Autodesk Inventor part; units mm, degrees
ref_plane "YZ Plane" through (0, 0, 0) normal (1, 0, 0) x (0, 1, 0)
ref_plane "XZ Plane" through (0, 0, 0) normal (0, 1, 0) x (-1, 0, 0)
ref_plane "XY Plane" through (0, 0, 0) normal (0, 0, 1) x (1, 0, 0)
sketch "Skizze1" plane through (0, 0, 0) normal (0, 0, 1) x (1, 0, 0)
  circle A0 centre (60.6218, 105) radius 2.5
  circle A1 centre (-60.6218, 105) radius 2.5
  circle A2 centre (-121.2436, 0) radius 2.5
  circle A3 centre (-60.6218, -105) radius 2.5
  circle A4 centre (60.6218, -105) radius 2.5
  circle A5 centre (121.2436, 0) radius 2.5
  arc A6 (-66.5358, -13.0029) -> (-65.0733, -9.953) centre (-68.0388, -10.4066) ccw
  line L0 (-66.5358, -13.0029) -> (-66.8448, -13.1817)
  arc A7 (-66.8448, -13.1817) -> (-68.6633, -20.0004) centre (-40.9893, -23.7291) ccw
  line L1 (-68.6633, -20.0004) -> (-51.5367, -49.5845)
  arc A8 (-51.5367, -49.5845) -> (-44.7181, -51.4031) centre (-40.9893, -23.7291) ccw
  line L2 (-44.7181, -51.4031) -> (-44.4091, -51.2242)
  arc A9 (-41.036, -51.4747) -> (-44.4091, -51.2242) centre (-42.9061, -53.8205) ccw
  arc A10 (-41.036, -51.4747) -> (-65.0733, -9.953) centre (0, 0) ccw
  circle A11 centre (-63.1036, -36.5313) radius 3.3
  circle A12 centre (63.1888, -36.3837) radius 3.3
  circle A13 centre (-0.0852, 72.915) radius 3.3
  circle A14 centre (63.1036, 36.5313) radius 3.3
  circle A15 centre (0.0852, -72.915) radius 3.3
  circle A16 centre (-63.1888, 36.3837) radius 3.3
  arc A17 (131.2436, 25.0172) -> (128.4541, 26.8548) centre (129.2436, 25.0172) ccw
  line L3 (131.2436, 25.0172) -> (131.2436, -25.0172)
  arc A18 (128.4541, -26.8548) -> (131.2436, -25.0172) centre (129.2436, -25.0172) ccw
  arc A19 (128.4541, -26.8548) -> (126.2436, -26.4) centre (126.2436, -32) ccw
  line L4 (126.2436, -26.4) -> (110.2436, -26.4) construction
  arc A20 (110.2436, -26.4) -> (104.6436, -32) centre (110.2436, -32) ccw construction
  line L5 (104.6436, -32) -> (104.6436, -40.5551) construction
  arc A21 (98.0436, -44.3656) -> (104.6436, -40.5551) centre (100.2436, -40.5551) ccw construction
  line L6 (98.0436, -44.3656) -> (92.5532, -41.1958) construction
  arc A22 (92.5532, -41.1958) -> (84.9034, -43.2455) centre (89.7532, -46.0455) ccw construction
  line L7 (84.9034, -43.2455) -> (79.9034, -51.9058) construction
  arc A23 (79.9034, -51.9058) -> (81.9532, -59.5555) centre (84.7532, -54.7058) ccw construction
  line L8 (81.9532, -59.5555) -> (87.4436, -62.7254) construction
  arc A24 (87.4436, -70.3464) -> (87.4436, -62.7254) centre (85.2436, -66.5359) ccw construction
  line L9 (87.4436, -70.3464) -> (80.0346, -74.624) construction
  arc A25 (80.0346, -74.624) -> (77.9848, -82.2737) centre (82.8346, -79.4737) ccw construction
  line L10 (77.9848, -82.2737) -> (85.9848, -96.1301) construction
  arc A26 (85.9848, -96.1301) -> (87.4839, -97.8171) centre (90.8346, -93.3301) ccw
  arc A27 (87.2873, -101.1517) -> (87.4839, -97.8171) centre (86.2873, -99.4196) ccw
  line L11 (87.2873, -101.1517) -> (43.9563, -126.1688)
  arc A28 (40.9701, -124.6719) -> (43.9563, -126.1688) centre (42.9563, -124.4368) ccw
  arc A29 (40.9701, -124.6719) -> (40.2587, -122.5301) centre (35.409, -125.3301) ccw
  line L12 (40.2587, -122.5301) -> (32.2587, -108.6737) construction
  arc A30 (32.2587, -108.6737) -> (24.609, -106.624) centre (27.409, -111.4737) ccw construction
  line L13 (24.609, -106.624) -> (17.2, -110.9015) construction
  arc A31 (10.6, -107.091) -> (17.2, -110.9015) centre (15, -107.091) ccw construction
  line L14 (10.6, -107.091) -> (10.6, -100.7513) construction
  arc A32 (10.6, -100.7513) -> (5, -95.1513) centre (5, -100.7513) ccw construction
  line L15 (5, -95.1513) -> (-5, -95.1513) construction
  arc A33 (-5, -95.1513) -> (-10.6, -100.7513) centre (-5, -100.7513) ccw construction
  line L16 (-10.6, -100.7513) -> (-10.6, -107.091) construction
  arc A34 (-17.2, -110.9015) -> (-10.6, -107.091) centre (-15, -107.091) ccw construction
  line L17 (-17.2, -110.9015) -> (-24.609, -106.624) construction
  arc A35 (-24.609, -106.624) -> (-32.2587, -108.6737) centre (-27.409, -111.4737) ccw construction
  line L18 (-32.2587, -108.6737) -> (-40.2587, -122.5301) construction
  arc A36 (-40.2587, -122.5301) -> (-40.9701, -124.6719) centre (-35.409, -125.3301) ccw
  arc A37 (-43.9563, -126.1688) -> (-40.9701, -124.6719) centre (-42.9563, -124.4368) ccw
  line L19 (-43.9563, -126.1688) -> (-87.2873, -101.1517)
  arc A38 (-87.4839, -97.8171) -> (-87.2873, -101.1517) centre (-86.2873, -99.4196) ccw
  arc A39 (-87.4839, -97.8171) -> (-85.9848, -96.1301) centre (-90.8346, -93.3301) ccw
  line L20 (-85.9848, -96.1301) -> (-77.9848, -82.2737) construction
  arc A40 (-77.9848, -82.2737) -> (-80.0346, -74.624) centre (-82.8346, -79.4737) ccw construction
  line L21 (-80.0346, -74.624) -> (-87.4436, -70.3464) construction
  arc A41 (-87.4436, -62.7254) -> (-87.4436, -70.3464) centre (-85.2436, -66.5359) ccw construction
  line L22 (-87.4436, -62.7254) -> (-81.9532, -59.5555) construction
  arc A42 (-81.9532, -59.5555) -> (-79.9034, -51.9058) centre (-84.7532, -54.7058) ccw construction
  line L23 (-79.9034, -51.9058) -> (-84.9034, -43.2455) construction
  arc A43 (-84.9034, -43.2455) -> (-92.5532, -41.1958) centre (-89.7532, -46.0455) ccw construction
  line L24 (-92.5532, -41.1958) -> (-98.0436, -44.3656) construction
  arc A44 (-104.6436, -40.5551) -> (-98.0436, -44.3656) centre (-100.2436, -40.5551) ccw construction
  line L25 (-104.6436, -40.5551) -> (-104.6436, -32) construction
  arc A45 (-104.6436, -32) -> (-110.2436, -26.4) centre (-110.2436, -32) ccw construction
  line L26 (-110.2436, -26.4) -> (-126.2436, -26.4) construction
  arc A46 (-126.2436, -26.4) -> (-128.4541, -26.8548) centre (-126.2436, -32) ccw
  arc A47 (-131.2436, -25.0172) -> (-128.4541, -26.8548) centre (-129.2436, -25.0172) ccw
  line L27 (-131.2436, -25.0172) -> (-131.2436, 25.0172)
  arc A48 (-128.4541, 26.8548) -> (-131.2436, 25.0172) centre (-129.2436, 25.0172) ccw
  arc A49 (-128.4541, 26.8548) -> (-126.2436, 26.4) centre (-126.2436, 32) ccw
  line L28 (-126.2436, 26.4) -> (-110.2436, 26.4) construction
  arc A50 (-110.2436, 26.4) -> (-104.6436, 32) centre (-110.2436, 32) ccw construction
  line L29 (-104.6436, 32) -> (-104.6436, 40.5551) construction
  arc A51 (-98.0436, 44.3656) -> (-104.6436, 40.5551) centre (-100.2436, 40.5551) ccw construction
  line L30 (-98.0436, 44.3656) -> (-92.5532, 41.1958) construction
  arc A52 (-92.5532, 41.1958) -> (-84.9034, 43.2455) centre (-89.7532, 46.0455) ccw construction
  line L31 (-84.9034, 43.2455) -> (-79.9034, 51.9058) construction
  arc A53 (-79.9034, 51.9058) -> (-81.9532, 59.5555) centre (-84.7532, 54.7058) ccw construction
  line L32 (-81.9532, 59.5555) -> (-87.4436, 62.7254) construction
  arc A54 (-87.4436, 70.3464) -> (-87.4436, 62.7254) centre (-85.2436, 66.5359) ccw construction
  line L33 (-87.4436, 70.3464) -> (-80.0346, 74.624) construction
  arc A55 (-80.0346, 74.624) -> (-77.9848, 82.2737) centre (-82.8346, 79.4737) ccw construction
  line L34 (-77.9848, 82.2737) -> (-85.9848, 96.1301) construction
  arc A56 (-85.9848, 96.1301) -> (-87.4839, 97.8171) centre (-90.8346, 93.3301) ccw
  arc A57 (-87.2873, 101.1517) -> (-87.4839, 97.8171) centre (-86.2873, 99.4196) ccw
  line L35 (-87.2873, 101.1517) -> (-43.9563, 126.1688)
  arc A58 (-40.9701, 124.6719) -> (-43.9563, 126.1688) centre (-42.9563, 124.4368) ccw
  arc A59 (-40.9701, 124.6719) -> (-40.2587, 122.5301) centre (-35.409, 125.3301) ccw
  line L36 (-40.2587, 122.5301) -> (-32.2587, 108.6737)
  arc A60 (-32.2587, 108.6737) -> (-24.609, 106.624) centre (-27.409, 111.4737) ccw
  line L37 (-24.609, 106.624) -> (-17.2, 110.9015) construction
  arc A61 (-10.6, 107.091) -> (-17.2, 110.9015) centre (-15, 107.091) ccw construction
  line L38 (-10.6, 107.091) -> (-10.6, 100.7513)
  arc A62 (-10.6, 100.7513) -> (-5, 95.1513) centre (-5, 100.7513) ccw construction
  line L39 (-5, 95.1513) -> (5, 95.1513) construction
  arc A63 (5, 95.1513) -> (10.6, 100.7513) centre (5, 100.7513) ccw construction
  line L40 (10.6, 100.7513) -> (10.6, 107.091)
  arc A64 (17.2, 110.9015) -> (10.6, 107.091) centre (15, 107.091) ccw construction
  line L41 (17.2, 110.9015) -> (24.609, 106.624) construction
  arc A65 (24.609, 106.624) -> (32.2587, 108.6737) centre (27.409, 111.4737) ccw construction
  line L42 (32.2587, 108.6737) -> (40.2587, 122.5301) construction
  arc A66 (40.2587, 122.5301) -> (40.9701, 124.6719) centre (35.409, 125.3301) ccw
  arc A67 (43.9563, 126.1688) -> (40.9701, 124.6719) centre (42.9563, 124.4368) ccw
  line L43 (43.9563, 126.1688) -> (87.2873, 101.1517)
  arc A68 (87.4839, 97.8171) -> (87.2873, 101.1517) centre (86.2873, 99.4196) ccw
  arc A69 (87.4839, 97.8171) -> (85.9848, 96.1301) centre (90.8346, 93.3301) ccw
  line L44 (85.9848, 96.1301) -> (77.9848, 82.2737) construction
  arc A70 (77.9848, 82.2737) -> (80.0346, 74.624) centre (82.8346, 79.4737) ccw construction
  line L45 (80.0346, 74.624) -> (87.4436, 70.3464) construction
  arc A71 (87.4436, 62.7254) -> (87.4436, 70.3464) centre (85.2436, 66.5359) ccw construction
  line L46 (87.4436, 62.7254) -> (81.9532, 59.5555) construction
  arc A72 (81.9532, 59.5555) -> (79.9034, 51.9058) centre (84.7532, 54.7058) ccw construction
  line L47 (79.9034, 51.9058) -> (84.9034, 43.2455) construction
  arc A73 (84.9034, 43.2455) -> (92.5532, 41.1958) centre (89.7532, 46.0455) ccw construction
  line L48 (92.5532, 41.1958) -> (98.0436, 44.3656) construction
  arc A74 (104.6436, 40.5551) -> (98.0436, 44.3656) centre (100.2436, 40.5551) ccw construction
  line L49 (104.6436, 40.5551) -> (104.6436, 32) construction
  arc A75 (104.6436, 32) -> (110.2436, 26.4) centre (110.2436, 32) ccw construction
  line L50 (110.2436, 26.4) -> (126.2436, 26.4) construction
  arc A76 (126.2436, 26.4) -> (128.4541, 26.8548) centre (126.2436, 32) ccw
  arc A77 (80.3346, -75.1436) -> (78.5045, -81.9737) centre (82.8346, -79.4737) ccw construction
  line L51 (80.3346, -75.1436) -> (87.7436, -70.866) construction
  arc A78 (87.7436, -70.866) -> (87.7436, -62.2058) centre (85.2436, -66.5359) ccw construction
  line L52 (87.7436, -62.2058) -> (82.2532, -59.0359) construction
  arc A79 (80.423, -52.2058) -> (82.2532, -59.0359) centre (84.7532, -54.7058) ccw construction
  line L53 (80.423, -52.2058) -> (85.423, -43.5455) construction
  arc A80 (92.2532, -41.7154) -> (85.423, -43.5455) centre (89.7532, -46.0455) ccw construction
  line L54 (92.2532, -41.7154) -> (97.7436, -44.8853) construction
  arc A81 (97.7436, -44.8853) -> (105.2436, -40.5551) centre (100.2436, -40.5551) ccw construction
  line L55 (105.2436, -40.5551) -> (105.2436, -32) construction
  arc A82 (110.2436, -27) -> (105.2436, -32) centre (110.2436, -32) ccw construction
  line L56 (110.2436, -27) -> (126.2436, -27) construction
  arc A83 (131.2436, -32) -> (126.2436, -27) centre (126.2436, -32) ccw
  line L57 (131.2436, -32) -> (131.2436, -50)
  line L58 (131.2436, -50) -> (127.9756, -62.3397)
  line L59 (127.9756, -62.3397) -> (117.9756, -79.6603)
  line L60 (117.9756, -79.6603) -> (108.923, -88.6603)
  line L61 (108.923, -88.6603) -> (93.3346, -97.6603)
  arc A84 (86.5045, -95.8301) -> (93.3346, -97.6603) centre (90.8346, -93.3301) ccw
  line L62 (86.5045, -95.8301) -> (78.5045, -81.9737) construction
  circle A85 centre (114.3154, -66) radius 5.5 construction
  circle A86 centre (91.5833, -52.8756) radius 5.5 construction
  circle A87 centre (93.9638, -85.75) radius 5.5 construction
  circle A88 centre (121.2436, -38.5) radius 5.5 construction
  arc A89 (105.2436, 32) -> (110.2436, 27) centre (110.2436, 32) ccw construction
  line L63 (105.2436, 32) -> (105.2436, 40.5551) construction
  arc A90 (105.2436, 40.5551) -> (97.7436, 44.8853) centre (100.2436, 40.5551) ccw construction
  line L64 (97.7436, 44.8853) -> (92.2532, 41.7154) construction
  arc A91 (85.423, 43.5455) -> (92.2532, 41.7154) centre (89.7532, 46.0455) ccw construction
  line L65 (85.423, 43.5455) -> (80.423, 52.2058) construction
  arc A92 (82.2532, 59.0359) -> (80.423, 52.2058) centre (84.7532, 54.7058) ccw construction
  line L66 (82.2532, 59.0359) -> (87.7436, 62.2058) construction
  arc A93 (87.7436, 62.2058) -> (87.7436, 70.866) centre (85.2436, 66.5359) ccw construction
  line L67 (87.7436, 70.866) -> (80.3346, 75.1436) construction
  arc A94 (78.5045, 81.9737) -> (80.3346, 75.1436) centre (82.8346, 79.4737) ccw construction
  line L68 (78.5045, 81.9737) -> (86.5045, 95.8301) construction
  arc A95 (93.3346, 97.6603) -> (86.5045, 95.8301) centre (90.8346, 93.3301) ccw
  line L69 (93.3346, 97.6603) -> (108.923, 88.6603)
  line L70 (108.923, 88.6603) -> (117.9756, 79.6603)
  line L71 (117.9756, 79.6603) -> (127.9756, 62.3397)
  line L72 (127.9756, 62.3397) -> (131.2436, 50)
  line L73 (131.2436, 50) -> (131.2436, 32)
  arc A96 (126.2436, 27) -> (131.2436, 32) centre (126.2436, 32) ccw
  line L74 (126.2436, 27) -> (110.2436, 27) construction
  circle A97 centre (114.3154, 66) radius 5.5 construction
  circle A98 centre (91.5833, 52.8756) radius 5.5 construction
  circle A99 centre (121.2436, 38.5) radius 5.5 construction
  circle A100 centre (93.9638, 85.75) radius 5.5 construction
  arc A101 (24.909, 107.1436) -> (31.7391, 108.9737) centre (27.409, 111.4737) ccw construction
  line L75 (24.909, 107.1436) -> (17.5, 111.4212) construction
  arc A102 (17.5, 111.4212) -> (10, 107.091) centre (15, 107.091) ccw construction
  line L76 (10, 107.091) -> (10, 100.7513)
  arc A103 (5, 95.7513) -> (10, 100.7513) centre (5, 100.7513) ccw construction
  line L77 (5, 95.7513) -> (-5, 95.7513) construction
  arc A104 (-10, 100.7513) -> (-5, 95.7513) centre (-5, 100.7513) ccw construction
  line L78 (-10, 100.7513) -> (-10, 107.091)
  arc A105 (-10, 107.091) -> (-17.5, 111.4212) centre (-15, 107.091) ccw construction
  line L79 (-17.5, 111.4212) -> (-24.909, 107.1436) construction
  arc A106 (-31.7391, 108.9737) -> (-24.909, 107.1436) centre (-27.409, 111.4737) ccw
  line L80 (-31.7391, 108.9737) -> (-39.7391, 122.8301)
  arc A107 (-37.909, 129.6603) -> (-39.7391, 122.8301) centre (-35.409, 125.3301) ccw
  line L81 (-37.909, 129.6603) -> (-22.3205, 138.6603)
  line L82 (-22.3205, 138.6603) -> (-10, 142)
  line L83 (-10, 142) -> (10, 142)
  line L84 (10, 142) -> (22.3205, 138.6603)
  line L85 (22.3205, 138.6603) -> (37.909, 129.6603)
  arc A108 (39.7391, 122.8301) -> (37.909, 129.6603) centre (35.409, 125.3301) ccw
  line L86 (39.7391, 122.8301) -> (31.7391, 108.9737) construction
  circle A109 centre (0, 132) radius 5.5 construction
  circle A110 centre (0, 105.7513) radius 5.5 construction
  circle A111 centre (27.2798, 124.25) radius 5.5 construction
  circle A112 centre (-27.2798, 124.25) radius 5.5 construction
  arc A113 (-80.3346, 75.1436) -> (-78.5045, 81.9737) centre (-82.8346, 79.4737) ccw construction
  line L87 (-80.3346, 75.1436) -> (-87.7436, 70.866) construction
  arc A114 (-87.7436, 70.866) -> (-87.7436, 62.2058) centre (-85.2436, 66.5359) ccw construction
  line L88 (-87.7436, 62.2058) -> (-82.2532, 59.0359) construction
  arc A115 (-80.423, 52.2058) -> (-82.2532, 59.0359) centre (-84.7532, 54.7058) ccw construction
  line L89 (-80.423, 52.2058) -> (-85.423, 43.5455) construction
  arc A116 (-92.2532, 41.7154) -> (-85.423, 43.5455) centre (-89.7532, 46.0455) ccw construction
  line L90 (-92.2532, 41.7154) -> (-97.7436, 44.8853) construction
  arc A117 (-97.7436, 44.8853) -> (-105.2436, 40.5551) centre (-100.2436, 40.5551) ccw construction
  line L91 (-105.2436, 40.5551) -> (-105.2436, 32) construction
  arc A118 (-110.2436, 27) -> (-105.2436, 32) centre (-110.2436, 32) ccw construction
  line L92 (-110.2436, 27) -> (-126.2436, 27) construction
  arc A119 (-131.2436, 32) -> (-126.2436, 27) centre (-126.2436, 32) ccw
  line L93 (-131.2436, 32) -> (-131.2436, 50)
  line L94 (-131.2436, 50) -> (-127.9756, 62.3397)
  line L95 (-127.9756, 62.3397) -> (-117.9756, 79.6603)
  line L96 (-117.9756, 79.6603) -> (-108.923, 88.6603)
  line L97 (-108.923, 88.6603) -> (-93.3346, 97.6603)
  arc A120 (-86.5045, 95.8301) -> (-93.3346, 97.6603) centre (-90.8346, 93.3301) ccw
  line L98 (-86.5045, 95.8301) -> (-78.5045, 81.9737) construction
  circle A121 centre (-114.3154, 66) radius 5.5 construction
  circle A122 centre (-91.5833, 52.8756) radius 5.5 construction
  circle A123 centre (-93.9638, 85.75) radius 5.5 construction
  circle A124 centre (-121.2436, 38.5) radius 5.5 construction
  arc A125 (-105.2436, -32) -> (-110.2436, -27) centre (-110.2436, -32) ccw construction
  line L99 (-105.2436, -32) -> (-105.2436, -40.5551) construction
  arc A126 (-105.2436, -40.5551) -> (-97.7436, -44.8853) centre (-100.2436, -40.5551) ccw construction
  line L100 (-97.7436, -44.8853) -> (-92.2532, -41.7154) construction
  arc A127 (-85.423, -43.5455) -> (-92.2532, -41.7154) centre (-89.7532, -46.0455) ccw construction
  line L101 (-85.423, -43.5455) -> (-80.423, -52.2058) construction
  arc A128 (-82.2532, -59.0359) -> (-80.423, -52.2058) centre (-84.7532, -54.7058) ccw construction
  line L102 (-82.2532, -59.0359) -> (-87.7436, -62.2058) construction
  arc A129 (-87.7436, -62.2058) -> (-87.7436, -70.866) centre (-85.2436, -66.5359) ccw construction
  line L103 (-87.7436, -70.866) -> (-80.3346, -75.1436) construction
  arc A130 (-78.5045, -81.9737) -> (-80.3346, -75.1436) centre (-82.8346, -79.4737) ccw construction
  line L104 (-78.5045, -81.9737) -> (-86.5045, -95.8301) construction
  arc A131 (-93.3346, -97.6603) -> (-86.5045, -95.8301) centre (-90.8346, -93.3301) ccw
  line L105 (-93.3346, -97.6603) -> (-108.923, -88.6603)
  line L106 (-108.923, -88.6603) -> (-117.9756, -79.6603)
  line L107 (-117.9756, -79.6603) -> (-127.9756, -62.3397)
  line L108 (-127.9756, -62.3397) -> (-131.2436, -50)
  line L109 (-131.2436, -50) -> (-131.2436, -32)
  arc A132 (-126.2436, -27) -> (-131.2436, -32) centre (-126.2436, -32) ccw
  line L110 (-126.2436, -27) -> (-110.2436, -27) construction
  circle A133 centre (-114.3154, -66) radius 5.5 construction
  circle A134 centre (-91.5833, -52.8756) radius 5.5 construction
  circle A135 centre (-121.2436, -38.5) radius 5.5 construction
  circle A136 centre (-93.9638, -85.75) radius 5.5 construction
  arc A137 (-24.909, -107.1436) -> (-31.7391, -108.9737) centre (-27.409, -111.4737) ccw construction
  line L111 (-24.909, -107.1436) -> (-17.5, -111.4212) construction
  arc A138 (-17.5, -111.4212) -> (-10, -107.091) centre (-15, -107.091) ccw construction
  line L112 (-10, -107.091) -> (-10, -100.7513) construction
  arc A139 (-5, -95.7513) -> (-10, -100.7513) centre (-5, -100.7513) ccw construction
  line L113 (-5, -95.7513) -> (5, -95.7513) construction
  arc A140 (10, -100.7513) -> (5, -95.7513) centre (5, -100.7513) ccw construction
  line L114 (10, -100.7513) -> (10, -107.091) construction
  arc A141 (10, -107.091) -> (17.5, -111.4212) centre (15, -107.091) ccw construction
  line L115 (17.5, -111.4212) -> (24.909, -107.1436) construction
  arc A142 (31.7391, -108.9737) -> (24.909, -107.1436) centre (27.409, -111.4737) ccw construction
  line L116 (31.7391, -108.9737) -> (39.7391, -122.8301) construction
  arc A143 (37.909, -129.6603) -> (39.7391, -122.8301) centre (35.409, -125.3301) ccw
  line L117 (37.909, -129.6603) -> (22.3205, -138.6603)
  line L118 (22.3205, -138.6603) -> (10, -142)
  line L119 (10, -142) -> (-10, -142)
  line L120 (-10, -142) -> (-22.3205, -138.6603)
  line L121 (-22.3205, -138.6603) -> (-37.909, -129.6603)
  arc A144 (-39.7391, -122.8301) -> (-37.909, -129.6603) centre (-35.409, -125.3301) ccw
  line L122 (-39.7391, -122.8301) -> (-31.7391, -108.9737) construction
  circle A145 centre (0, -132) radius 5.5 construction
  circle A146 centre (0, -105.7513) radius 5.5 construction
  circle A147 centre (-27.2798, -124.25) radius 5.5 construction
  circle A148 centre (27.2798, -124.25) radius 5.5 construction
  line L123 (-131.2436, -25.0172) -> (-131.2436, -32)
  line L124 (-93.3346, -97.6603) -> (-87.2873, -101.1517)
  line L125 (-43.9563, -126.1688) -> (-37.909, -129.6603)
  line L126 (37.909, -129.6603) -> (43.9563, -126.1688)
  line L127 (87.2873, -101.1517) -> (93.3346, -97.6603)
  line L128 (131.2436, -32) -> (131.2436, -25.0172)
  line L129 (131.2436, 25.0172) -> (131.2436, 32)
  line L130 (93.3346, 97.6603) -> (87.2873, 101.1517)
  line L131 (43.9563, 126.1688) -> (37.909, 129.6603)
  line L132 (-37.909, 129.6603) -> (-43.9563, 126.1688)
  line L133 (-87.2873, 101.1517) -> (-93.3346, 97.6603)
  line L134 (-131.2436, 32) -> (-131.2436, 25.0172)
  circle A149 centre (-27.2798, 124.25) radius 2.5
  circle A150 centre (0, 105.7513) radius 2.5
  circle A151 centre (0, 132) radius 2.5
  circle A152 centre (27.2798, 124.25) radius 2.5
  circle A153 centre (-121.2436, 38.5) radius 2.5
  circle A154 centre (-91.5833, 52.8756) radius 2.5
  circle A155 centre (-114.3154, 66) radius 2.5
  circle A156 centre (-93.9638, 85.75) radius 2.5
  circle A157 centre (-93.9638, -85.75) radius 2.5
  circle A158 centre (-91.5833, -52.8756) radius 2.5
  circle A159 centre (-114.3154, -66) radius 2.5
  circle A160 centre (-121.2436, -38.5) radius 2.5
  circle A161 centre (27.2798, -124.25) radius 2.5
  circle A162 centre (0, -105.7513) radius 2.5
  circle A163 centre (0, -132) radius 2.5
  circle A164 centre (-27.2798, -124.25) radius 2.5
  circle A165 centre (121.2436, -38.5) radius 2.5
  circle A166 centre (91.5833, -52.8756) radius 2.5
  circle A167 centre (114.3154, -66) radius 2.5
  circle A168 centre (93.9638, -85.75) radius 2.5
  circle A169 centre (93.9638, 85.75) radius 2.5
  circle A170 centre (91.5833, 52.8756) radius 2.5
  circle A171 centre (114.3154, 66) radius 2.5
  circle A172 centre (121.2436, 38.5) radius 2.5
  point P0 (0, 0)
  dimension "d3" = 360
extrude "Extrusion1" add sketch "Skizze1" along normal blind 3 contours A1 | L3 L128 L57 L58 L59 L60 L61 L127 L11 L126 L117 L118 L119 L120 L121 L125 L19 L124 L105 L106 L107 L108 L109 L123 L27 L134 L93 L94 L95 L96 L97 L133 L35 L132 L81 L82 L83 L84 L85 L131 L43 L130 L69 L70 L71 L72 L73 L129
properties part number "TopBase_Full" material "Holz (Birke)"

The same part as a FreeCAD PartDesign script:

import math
import FreeCAD as App
import Part
import Sketcher
Q = App.Units.Quantity

doc = App.newDocument("Part")
body = doc.addObject("PartDesign::Body", "Body")

sketch1 = doc.addObject("Sketcher::SketchObject", "Sketch")
body.addObject(sketch1)
sketch1.AttachmentSupport = (doc.XY_Plane, [""])
sketch1.MapMode = "FlatFace"
sketch1.addGeometry(Part.LineSegment(App.Vector(131.2436, 50, 0), App.Vector(127.9756, 62.3397, 0)), False)
sketch1.addGeometry(Part.LineSegment(App.Vector(127.9756, 62.3397, 0), App.Vector(117.9756, 79.6603, 0)), False)
sketch1.addGeometry(Part.LineSegment(App.Vector(117.9756, 79.6603, 0), App.Vector(108.923, 88.6603, 0)), False)
sketch1.addGeometry(Part.LineSegment(App.Vector(108.923, 88.6603, 0), App.Vector(93.3346, 97.6603, 0)), False)
sketch1.addGeometry(Part.LineSegment(App.Vector(93.3346, 97.6603, 0), App.Vector(87.2873, 101.1517, 0)), False)
sketch1.addGeometry(Part.LineSegment(App.Vector(87.2873, 101.1517, 0), App.Vector(43.9563, 126.1688, 0)), False)
sketch1.addGeometry(Part.LineSegment(App.Vector(43.9563, 126.1688, 0), App.Vector(37.909, 129.6603, 0)), False)
sketch1.addGeometry(Part.LineSegment(App.Vector(37.909, 129.6603, 0), App.Vector(22.3205, 138.6603, 0)), False)
sketch1.addGeometry(Part.LineSegment(App.Vector(22.3205, 138.6603, 0), App.Vector(10, 142, 0)), False)
sketch1.addGeometry(Part.LineSegment(App.Vector(10, 142, 0), App.Vector(-10, 142, 0)), False)
sketch1.addGeometry(Part.LineSegment(App.Vector(-10, 142, 0), App.Vector(-22.3205, 138.6603, 0)), False)
sketch1.addGeometry(Part.LineSegment(App.Vector(-22.3205, 138.6603, 0), App.Vector(-37.909, 129.6603, 0)), False)
sketch1.addGeometry(Part.LineSegment(App.Vector(-37.909, 129.6603, 0), App.Vector(-43.9563, 126.1688, 0)), False)
sketch1.addGeometry(Part.LineSegment(App.Vector(-43.9563, 126.1688, 0), App.Vector(-87.2873, 101.1517, 0)), False)
sketch1.addGeometry(Part.LineSegment(App.Vector(-87.2873, 101.1517, 0), App.Vector(-93.3346, 97.6603, 0)), False)
sketch1.addGeometry(Part.LineSegment(App.Vector(-93.3346, 97.6603, 0), App.Vector(-108.923, 88.6603, 0)), False)
sketch1.addGeometry(Part.LineSegment(App.Vector(-108.923, 88.6603, 0), App.Vector(-117.9756, 79.6603, 0)), False)
sketch1.addGeometry(Part.LineSegment(App.Vector(-117.9756, 79.6603, 0), App.Vector(-127.9756, 62.3397, 0)), False)
sketch1.addGeometry(Part.LineSegment(App.Vector(-127.9756, 62.3397, 0), App.Vector(-131.2436, 50, 0)), False)
sketch1.addGeometry(Part.LineSegment(App.Vector(-131.2436, 50, 0), App.Vector(-131.2436, -50, 0)), False)
sketch1.addGeometry(Part.LineSegment(App.Vector(-131.2436, -50, 0), App.Vector(-127.9756, -62.3397, 0)), False)
sketch1.addGeometry(Part.LineSegment(App.Vector(-127.9756, -62.3397, 0), App.Vector(-117.9756, -79.6603, 0)), False)
sketch1.addGeometry(Part.LineSegment(App.Vector(-117.9756, -79.6603, 0), App.Vector(-108.923, -88.6603, 0)), False)
sketch1.addGeometry(Part.LineSegment(App.Vector(-108.923, -88.6603, 0), App.Vector(-93.3346, -97.6603, 0)), False)
sketch1.addGeometry(Part.LineSegment(App.Vector(-93.3346, -97.6603, 0), App.Vector(-87.2873, -101.1517, 0)), False)
sketch1.addGeometry(Part.LineSegment(App.Vector(-87.2873, -101.1517, 0), App.Vector(-43.9563, -126.1688, 0)), False)
sketch1.addGeometry(Part.LineSegment(App.Vector(-43.9563, -126.1688, 0), App.Vector(-37.909, -129.6603, 0)), False)
sketch1.addGeometry(Part.LineSegment(App.Vector(-37.909, -129.6603, 0), App.Vector(-22.3205, -138.6603, 0)), False)
sketch1.addGeometry(Part.LineSegment(App.Vector(-22.3205, -138.6603, 0), App.Vector(-10, -142, 0)), False)
sketch1.addGeometry(Part.LineSegment(App.Vector(-10, -142, 0), App.Vector(10, -142, 0)), False)
sketch1.addGeometry(Part.LineSegment(App.Vector(10, -142, 0), App.Vector(22.3205, -138.6603, 0)), False)
sketch1.addGeometry(Part.LineSegment(App.Vector(22.3205, -138.6603, 0), App.Vector(37.909, -129.6603, 0)), False)
sketch1.addGeometry(Part.LineSegment(App.Vector(37.909, -129.6603, 0), App.Vector(43.9563, -126.1688, 0)), False)
sketch1.addGeometry(Part.LineSegment(App.Vector(43.9563, -126.1688, 0), App.Vector(87.2873, -101.1517, 0)), False)
sketch1.addGeometry(Part.LineSegment(App.Vector(87.2873, -101.1517, 0), App.Vector(93.3346, -97.6603, 0)), False)
sketch1.addGeometry(Part.LineSegment(App.Vector(93.3346, -97.6603, 0), App.Vector(108.923, -88.6603, 0)), False)
sketch1.addGeometry(Part.LineSegment(App.Vector(108.923, -88.6603, 0), App.Vector(117.9756, -79.6603, 0)), False)
sketch1.addGeometry(Part.LineSegment(App.Vector(117.9756, -79.6603, 0), App.Vector(127.9756, -62.3397, 0)), False)
sketch1.addGeometry(Part.LineSegment(App.Vector(127.9756, -62.3397, 0), App.Vector(131.2436, -50, 0)), False)
sketch1.addGeometry(Part.LineSegment(App.Vector(131.2436, -50, 0), App.Vector(131.2436, 50, 0)), False)
sketch1.addGeometry(Part.Circle(App.Vector(-93.9638, -85.75, 0), App.Vector(0, 0, 1), 2.5), False)
sketch1.addGeometry(Part.Circle(App.Vector(-27.2798, -124.25, 0), App.Vector(0, 0, 1), 2.5), False)
sketch1.addGeometry(Part.Circle(App.Vector(-60.6218, -105, 0), App.Vector(0, 0, 1), 2.5), False)
sketch1.addGeometry(Part.Circle(App.Vector(-114.3154, -66, 0), App.Vector(0, 0, 1), 2.5), False)
sketch1.addGeometry(Part.Circle(App.Vector(-121.2436, -38.5, 0), App.Vector(0, 0, 1), 2.5), False)
sketch1.addGeometry(Part.Circle(App.Vector(-91.5833, -52.8756, 0), App.Vector(0, 0, 1), 2.5), False)
sketch1.addGeometry(Part.Circle(App.Vector(-63.1036, -36.5313, 0), App.Vector(0, 0, 1), 3.3), False)
sketch1.addGeometry(Part.LineSegment(App.Vector(-66.8448, -13.1817, 0), App.Vector(-66.5358, -13.0029, 0)), False)
sketch1.addGeometry(Part.ArcOfCircle(Part.Circle(App.Vector(-68.0388, -10.4066, 0), App.Vector(0, 0, 1), 2.999964), math.radians(-59.933418), math.radians(8.696502)), False)
sketch1.addGeometry(Part.ArcOfCircle(Part.Circle(App.Vector(0, 0, 0), App.Vector(0, 0, 1), 65.830069), math.radians(-128.562104), math.radians(188.69603)), False)
sketch1.addGeometry(Part.ArcOfCircle(Part.Circle(App.Vector(-42.9061, -53.8205, 0), App.Vector(0, 0, 1), 3.000009), math.radians(51.437726), math.radians(120.066582)), False)
sketch1.addGeometry(Part.LineSegment(App.Vector(-44.4091, -51.2242, 0), App.Vector(-44.7181, -51.4031, 0)), False)
sketch1.addGeometry(Part.ArcOfCircle(Part.Circle(App.Vector(-40.987565, -23.723933, 0), App.Vector(0, 0, 1), 27.929432), math.radians(-112.191706), math.radians(-97.67594)), False)
sketch1.addGeometry(Part.LineSegment(App.Vector(-51.5367, -49.5845, 0), App.Vector(-68.6633, -20.0004, 0)), False)
sketch1.addGeometry(Part.ArcOfCircle(Part.Circle(App.Vector(-40.990411, -23.728727, 0), App.Vector(0, 0, 1), 27.922915), math.radians(157.807511), math.radians(172.32683)), False)
sketch1.addGeometry(Part.Circle(App.Vector(0, -132, 0), App.Vector(0, 0, 1), 2.5), False)
sketch1.addGeometry(Part.Circle(App.Vector(27.2798, -124.25, 0), App.Vector(0, 0, 1), 2.5), False)
sketch1.addGeometry(Part.Circle(App.Vector(0, -105.7513, 0), App.Vector(0, 0, 1), 2.5), False)
sketch1.addGeometry(Part.Circle(App.Vector(0.0852, -72.915, 0), App.Vector(0, 0, 1), 3.3), False)
sketch1.addGeometry(Part.Circle(App.Vector(60.6218, -105, 0), App.Vector(0, 0, 1), 2.5), False)
sketch1.addGeometry(Part.Circle(App.Vector(93.9638, -85.75, 0), App.Vector(0, 0, 1), 2.5), False)
sketch1.addGeometry(Part.Circle(App.Vector(63.1888, -36.3837, 0), App.Vector(0, 0, 1), 3.3), False)
sketch1.addGeometry(Part.Circle(App.Vector(91.5833, -52.8756, 0), App.Vector(0, 0, 1), 2.5), False)
sketch1.addGeometry(Part.Circle(App.Vector(114.3154, -66, 0), App.Vector(0, 0, 1), 2.5), False)
sketch1.addGeometry(Part.Circle(App.Vector(121.2436, -38.5, 0), App.Vector(0, 0, 1), 2.5), False)
sketch1.addGeometry(Part.Circle(App.Vector(-121.2436, 0, 0), App.Vector(0, 0, 1), 2.5), False)
sketch1.addGeometry(Part.Circle(App.Vector(-121.2436, 38.5, 0), App.Vector(0, 0, 1), 2.5), False)
sketch1.addGeometry(Part.Circle(App.Vector(-114.3154, 66, 0), App.Vector(0, 0, 1), 2.5), False)
sketch1.addGeometry(Part.Circle(App.Vector(-91.5833, 52.8756, 0), App.Vector(0, 0, 1), 2.5), False)
sketch1.addGeometry(Part.Circle(App.Vector(-63.1888, 36.3837, 0), App.Vector(0, 0, 1), 3.3), False)
sketch1.addGeometry(Part.Circle(App.Vector(-93.9638, 85.75, 0), App.Vector(0, 0, 1), 2.5), False)
sketch1.addGeometry(Part.Circle(App.Vector(93.9638, 85.75, 0), App.Vector(0, 0, 1), 2.5), False)
sketch1.addGeometry(Part.Circle(App.Vector(-0.0852, 72.915, 0), App.Vector(0, 0, 1), 3.3), False)
sketch1.addGeometry(Part.Circle(App.Vector(-27.2798, 124.25, 0), App.Vector(0, 0, 1), 2.5), False)
sketch1.addGeometry(Part.Circle(App.Vector(63.1036, 36.5313, 0), App.Vector(0, 0, 1), 3.3), False)
sketch1.addGeometry(Part.Circle(App.Vector(121.2436, 0, 0), App.Vector(0, 0, 1), 2.5), False)
sketch1.addGeometry(Part.Circle(App.Vector(91.5833, 52.8756, 0), App.Vector(0, 0, 1), 2.5), False)
sketch1.addGeometry(Part.Circle(App.Vector(121.2436, 38.5, 0), App.Vector(0, 0, 1), 2.5), False)
sketch1.addGeometry(Part.Circle(App.Vector(114.3154, 66, 0), App.Vector(0, 0, 1), 2.5), False)
sketch1.addGeometry(Part.Circle(App.Vector(0, 105.7513, 0), App.Vector(0, 0, 1), 2.5), False)
sketch1.addGeometry(Part.Circle(App.Vector(60.6218, 105, 0), App.Vector(0, 0, 1), 2.5), False)
sketch1.addGeometry(Part.Circle(App.Vector(0, 132, 0), App.Vector(0, 0, 1), 2.5), False)
sketch1.addGeometry(Part.Circle(App.Vector(27.2798, 124.25, 0), App.Vector(0, 0, 1), 2.5), False)
sketch1.addConstraint(Sketcher.Constraint("Coincident", 0, 2, 1, 1))
sketch1.addConstraint(Sketcher.Constraint("Coincident", 1, 2, 2, 1))
sketch1.addConstraint(Sketcher.Constraint("Coincident", 2, 2, 3, 1))
sketch1.addConstraint(Sketcher.Constraint("Coincident", 3, 2, 4, 1))
sketch1.addConstraint(Sketcher.Constraint("Coincident", 4, 2, 5, 1))
sketch1.addConstraint(Sketcher.Constraint("Coincident", 5, 2, 6, 1))
sketch1.addConstraint(Sketcher.Constraint("Coincident", 6, 2, 7, 1))
sketch1.addConstraint(Sketcher.Constraint("Coincident", 7, 2, 8, 1))
sketch1.addConstraint(Sketcher.Constraint("Coincident", 8, 2, 9, 1))
sketch1.addConstraint(Sketcher.Constraint("Coincident", 9, 2, 10, 1))
sketch1.addConstraint(Sketcher.Constraint("Coincident", 10, 2, 11, 1))
sketch1.addConstraint(Sketcher.Constraint("Coincident", 11, 2, 12, 1))
sketch1.addConstraint(Sketcher.Constraint("Coincident", 12, 2, 13, 1))
sketch1.addConstraint(Sketcher.Constraint("Coincident", 13, 2, 14, 1))
sketch1.addConstraint(Sketcher.Constraint("Coincident", 14, 2, 15, 1))
sketch1.addConstraint(Sketcher.Constraint("Coincident", 15, 2, 16, 1))
sketch1.addConstraint(Sketcher.Constraint("Coincident", 16, 2, 17, 1))
sketch1.addConstraint(Sketcher.Constraint("Coincident", 17, 2, 18, 1))
sketch1.addConstraint(Sketcher.Constraint("Coincident", 18, 2, 19, 1))
sketch1.addConstraint(Sketcher.Constraint("Coincident", 19, 2, 20, 1))
sketch1.addConstraint(Sketcher.Constraint("Coincident", 20, 2, 21, 1))
sketch1.addConstraint(Sketcher.Constraint("Coincident", 21, 2, 22, 1))
sketch1.addConstraint(Sketcher.Constraint("Coincident", 22, 2, 23, 1))
sketch1.addConstraint(Sketcher.Constraint("Coincident", 23, 2, 24, 1))
sketch1.addConstraint(Sketcher.Constraint("Coincident", 24, 2, 25, 1))
sketch1.addConstraint(Sketcher.Constraint("Coincident", 25, 2, 26, 1))
sketch1.addConstraint(Sketcher.Constraint("Coincident", 26, 2, 27, 1))
sketch1.addConstraint(Sketcher.Constraint("Coincident", 27, 2, 28, 1))
sketch1.addConstraint(Sketcher.Constraint("Coincident", 28, 2, 29, 1))
sketch1.addConstraint(Sketcher.Constraint("Coincident", 29, 2, 30, 1))
sketch1.addConstraint(Sketcher.Constraint("Coincident", 30, 2, 31, 1))
sketch1.addConstraint(Sketcher.Constraint("Coincident", 31, 2, 32, 1))
sketch1.addConstraint(Sketcher.Constraint("Coincident", 32, 2, 33, 1))
sketch1.addConstraint(Sketcher.Constraint("Coincident", 33, 2, 34, 1))
sketch1.addConstraint(Sketcher.Constraint("Coincident", 34, 2, 35, 1))
sketch1.addConstraint(Sketcher.Constraint("Coincident", 35, 2, 36, 1))
sketch1.addConstraint(Sketcher.Constraint("Coincident", 36, 2, 37, 1))
sketch1.addConstraint(Sketcher.Constraint("Coincident", 37, 2, 38, 1))
sketch1.addConstraint(Sketcher.Constraint("Coincident", 38, 2, 39, 1))
sketch1.addConstraint(Sketcher.Constraint("Coincident", 39, 2, 0, 1))
sketch1.addConstraint(Sketcher.Constraint("Coincident", 47, 2, 48, 1))
sketch1.addConstraint(Sketcher.Constraint("Coincident", 48, 2, 49, 2))
sketch1.addConstraint(Sketcher.Constraint("Coincident", 49, 1, 50, 1))
sketch1.addConstraint(Sketcher.Constraint("Coincident", 50, 2, 51, 1))
sketch1.addConstraint(Sketcher.Constraint("Coincident", 51, 2, 52, 2))
sketch1.addConstraint(Sketcher.Constraint("Coincident", 52, 1, 53, 1))
sketch1.addConstraint(Sketcher.Constraint("Coincident", 53, 2, 54, 2))
sketch1.addConstraint(Sketcher.Constraint("Coincident", 54, 1, 47, 1))
sketch1.addConstraint(Sketcher.Constraint("Horizontal", 9))
sketch1.addConstraint(Sketcher.Constraint("Vertical", 19))
sketch1.addConstraint(Sketcher.Constraint("Horizontal", 29))
sketch1.addConstraint(Sketcher.Constraint("Vertical", 39))
sketch1.addConstraint(Sketcher.Constraint("Coincident", 49, 3, -1, 1))
sketch1.addConstraint(Sketcher.Constraint("PointOnObject", 55, 3, -2))
sketch1.addConstraint(Sketcher.Constraint("PointOnObject", 57, 3, -2))
sketch1.addConstraint(Sketcher.Constraint("PointOnObject", 65, 3, -1))
sketch1.addConstraint(Sketcher.Constraint("PointOnObject", 75, 3, -1))
sketch1.addConstraint(Sketcher.Constraint("PointOnObject", 79, 3, -2))
sketch1.addConstraint(Sketcher.Constraint("PointOnObject", 81, 3, -2))
sketch1.addConstraint(Sketcher.Constraint("Diameter", 40, Q("5 mm")))
sketch1.addConstraint(Sketcher.Constraint("Diameter", 41, Q("5 mm")))
sketch1.addConstraint(Sketcher.Constraint("Diameter", 42, Q("5 mm")))
sketch1.addConstraint(Sketcher.Constraint("Diameter", 43, Q("5 mm")))
sketch1.addConstraint(Sketcher.Constraint("Diameter", 44, Q("5 mm")))
sketch1.addConstraint(Sketcher.Constraint("Diameter", 45, Q("5 mm")))
sketch1.addConstraint(Sketcher.Constraint("Diameter", 55, Q("5 mm")))
sketch1.addConstraint(Sketcher.Constraint("Diameter", 56, Q("5 mm")))
sketch1.addConstraint(Sketcher.Constraint("Diameter", 57, Q("5 mm")))
sketch1.addConstraint(Sketcher.Constraint("Diameter", 59, Q("5 mm")))
sketch1.addConstraint(Sketcher.Constraint("Diameter", 60, Q("5 mm")))
sketch1.addConstraint(Sketcher.Constraint("Diameter", 62, Q("5 mm")))
sketch1.addConstraint(Sketcher.Constraint("Diameter", 63, Q("5 mm")))
sketch1.addConstraint(Sketcher.Constraint("Diameter", 64, Q("5 mm")))
sketch1.addConstraint(Sketcher.Constraint("Diameter", 65, Q("5 mm")))
sketch1.addConstraint(Sketcher.Constraint("Diameter", 66, Q("5 mm")))
sketch1.addConstraint(Sketcher.Constraint("Diameter", 67, Q("5 mm")))
sketch1.addConstraint(Sketcher.Constraint("Diameter", 68, Q("5 mm")))
sketch1.addConstraint(Sketcher.Constraint("Diameter", 70, Q("5 mm")))
sketch1.addConstraint(Sketcher.Constraint("Diameter", 71, Q("5 mm")))
sketch1.addConstraint(Sketcher.Constraint("Diameter", 73, Q("5 mm")))
sketch1.addConstraint(Sketcher.Constraint("Diameter", 75, Q("5 mm")))
sketch1.addConstraint(Sketcher.Constraint("Diameter", 76, Q("5 mm")))
sketch1.addConstraint(Sketcher.Constraint("Diameter", 77, Q("5 mm")))
sketch1.addConstraint(Sketcher.Constraint("Diameter", 78, Q("5 mm")))
sketch1.addConstraint(Sketcher.Constraint("Diameter", 79, Q("5 mm")))
sketch1.addConstraint(Sketcher.Constraint("Diameter", 80, Q("5 mm")))
sketch1.addConstraint(Sketcher.Constraint("Diameter", 81, Q("5 mm")))
sketch1.addConstraint(Sketcher.Constraint("Diameter", 82, Q("5 mm")))
sketch1.addConstraint(Sketcher.Constraint("Radius", 48, Q("3 mm")))
sketch1.addConstraint(Sketcher.Constraint("Radius", 50, Q("3 mm")))
sketch1.addConstraint(Sketcher.Constraint("Diameter", 46, Q("6.6 mm")))
sketch1.addConstraint(Sketcher.Constraint("Diameter", 58, Q("6.6 mm")))
sketch1.addConstraint(Sketcher.Constraint("Diameter", 61, Q("6.6 mm")))
sketch1.addConstraint(Sketcher.Constraint("Diameter", 69, Q("6.6 mm")))
sketch1.addConstraint(Sketcher.Constraint("Diameter", 72, Q("6.6 mm")))
sketch1.addConstraint(Sketcher.Constraint("Diameter", 74, Q("6.6 mm")))
sketch1.addConstraint(Sketcher.Constraint("DistanceX", 9, 2, 9, 1, Q("20 mm")))
sketch1.addConstraint(Sketcher.Constraint("DistanceX", 29, 1, 29, 2, Q("20 mm")))
sketch1.addConstraint(Sketcher.Constraint("DistanceY", 19, 2, 19, 1, Q("100 mm")))
sketch1.addConstraint(Sketcher.Constraint("DistanceY", 39, 1, 39, 2, Q("100 mm")))
sketch1.addConstraint(Sketcher.Constraint("Radius", 49, Q("65.83 mm")))
sketch1.addConstraint(Sketcher.Constraint("Distance", 1, Q("20 mm")))
sketch1.addConstraint(Sketcher.Constraint("Distance", 3, Q("18 mm")))
sketch1.addConstraint(Sketcher.Constraint("Distance", 7, Q("18 mm")))
sketch1.addConstraint(Sketcher.Constraint("Distance", 11, Q("18 mm")))
sketch1.addConstraint(Sketcher.Constraint("Distance", 15, Q("18 mm")))
sketch1.addConstraint(Sketcher.Constraint("Distance", 17, Q("20 mm")))
sketch1.addConstraint(Sketcher.Constraint("Distance", 21, Q("20 mm")))
sketch1.addConstraint(Sketcher.Constraint("Distance", 23, Q("18 mm")))
sketch1.addConstraint(Sketcher.Constraint("Distance", 27, Q("18 mm")))
sketch1.addConstraint(Sketcher.Constraint("Distance", 31, Q("18 mm")))
sketch1.addConstraint(Sketcher.Constraint("Distance", 35, Q("18 mm")))
sketch1.addConstraint(Sketcher.Constraint("Distance", 37, Q("20 mm")))
sketch1.addConstraint(Sketcher.Constraint("DistanceY", 42, 3, -1, 1, Q("105 mm")))
sketch1.addConstraint(Sketcher.Constraint("DistanceY", 43, 3, -1, 1, Q("66 mm")))
sketch1.addConstraint(Sketcher.Constraint("DistanceY", 55, 3, -1, 1, Q("132 mm")))
sketch1.addConstraint(Sketcher.Constraint("DistanceY", 59, 3, -1, 1, Q("105 mm")))
sketch1.addConstraint(Sketcher.Constraint("DistanceY", 63, 3, -1, 1, Q("66 mm")))
sketch1.addConstraint(Sketcher.Constraint("DistanceY", -1, 1, 67, 3, Q("66 mm")))
sketch1.addConstraint(Sketcher.Constraint("DistanceY", -1, 1, 78, 3, Q("66 mm")))
sketch1.addConstraint(Sketcher.Constraint("DistanceY", -1, 1, 80, 3, Q("105 mm")))
sketch1.addConstraint(Sketcher.Constraint("DistanceY", -1, 1, 81, 3, Q("132 mm")))
sketch1.addConstraint(Sketcher.Constraint("DistanceX", -1, 1, 8, 2, Q("10 mm")))
sketch1.addConstraint(Sketcher.Constraint("DistanceY", -1, 1, 8, 2, Q("142 mm")))
sketch1.addConstraint(Sketcher.Constraint("DistanceY", -1, 1, 18, 2, Q("50 mm")))
sketch1.addConstraint(Sketcher.Constraint("DistanceX", 28, 2, -1, 1, Q("10 mm")))
sketch1.addConstraint(Sketcher.Constraint("DistanceY", 28, 2, -1, 1, Q("142 mm")))
sketch1.addConstraint(Sketcher.Constraint("DistanceY", 38, 2, -1, 1, Q("50 mm")))
sketch1.addConstraint(Sketcher.Constraint("Radius", 54, Q("27.923 mm")))
sketch1.addConstraint(Sketcher.Constraint("DistanceY", 44, 3, -1, 1, Q("38.5 mm")))
sketch1.addConstraint(Sketcher.Constraint("DistanceY", 64, 3, -1, 1, Q("38.5 mm")))
sketch1.addConstraint(Sketcher.Constraint("DistanceY", -1, 1, 66, 3, Q("38.5 mm")))
sketch1.addConstraint(Sketcher.Constraint("DistanceY", -1, 1, 77, 3, Q("38.5 mm")))
sketch1.addConstraint(Sketcher.Constraint("Radius", 52, Q("27.9294 mm")))
sketch1.addConstraint(Sketcher.Constraint("DistanceY", 40, 3, -1, 1, Q("85.75 mm")))
sketch1.addConstraint(Sketcher.Constraint("DistanceY", 41, 3, -1, 1, Q("124.25 mm")))
sketch1.addConstraint(Sketcher.Constraint("DistanceY", 56, 3, -1, 1, Q("124.25 mm")))
sketch1.addConstraint(Sketcher.Constraint("DistanceY", 60, 3, -1, 1, Q("85.75 mm")))
sketch1.addConstraint(Sketcher.Constraint("DistanceY", -1, 1, 70, 3, Q("85.75 mm")))
sketch1.addConstraint(Sketcher.Constraint("DistanceY", -1, 1, 71, 3, Q("85.75 mm")))
sketch1.addConstraint(Sketcher.Constraint("DistanceY", -1, 1, 73, 3, Q("124.25 mm")))
sketch1.addConstraint(Sketcher.Constraint("DistanceY", -1, 1, 82, 3, Q("124.25 mm")))
sketch1.addConstraint(Sketcher.Constraint("Distance", 0, Q("12.765 mm")))
sketch1.addConstraint(Sketcher.Constraint("Distance", 18, Q("12.765 mm")))
sketch1.addConstraint(Sketcher.Constraint("Distance", 20, Q("12.765 mm")))
sketch1.addConstraint(Sketcher.Constraint("Distance", 38, Q("12.765 mm")))
sketch1.addConstraint(Sketcher.Constraint("Distance", 47, Q("0.357 mm")))
sketch1.addConstraint(Sketcher.Constraint("Distance", 51, Q("0.357 mm")))
sketch1.addConstraint(Sketcher.Constraint("Distance", 53, Q("34.184 mm")))
sketch1.addConstraint(Sketcher.Constraint("DistanceX", 50, 3, -1, 1, Q("42.906 mm")))
sketch1.addConstraint(Sketcher.Constraint("DistanceY", 52, 3, -1, 1, Q("23.724 mm")))
sketch1.addConstraint(Sketcher.Constraint("DistanceY", 58, 3, -1, 1, Q("72.915 mm")))
sketch1.addConstraint(Sketcher.Constraint("DistanceY", -1, 1, 72, 3, Q("72.915 mm")))
sketch1.addConstraint(Sketcher.Constraint("DistanceX", -1, 1, 2, 2, Q("108.923 mm")))
sketch1.addConstraint(Sketcher.Constraint("DistanceX", -1, 1, 6, 2, Q("37.909 mm")))
sketch1.addConstraint(Sketcher.Constraint("DistanceX", 11, 2, -1, 1, Q("37.909 mm")))
sketch1.addConstraint(Sketcher.Constraint("DistanceX", 15, 2, -1, 1, Q("108.923 mm")))
sketch1.addConstraint(Sketcher.Constraint("DistanceX", 22, 2, -1, 1, Q("108.923 mm")))
sketch1.addConstraint(Sketcher.Constraint("DistanceX", 26, 2, -1, 1, Q("37.909 mm")))
sketch1.addConstraint(Sketcher.Constraint("DistanceX", -1, 1, 31, 2, Q("37.909 mm")))
sketch1.addConstraint(Sketcher.Constraint("DistanceX", -1, 1, 35, 2, Q("108.923 mm")))
sketch1.addConstraint(Sketcher.Constraint("DistanceY", 47, 2, -1, 1, Q("13.003 mm")))
sketch1.addConstraint(Sketcher.Constraint("DistanceY", 48, 2, -1, 1, Q("9.953 mm")))
sketch1.addConstraint(Sketcher.Constraint("DistanceX", 49, 1, -1, 1, Q("41.036 mm")))
sketch1.addConstraint(Sketcher.Constraint("DistanceX", 51, 2, -1, 1, Q("44.718 mm")))
sketch1.addConstraint(Sketcher.Constraint("DistanceY", 51, 2, -1, 1, Q("51.403 mm")))
sketch1.addConstraint(Sketcher.Constraint("Distance", 2, Q("12.7652 mm")))
sketch1.addConstraint(Sketcher.Constraint("Distance", 4, Q("6.9828 mm")))
sketch1.addConstraint(Sketcher.Constraint("Distance", 5, Q("50.0343 mm")))
sketch1.addConstraint(Sketcher.Constraint("Distance", 6, Q("6.9829 mm")))
sketch1.addConstraint(Sketcher.Constraint("Distance", 8, Q("12.7651 mm")))
sketch1.addConstraint(Sketcher.Constraint("Distance", 10, Q("12.7651 mm")))
sketch1.addConstraint(Sketcher.Constraint("Distance", 12, Q("6.9829 mm")))
sketch1.addConstraint(Sketcher.Constraint("Distance", 13, Q("50.0343 mm")))
sketch1.addConstraint(Sketcher.Constraint("Distance", 14, Q("6.9828 mm")))
sketch1.addConstraint(Sketcher.Constraint("Distance", 16, Q("12.7652 mm")))
sketch1.addConstraint(Sketcher.Constraint("Distance", 22, Q("12.7652 mm")))
sketch1.addConstraint(Sketcher.Constraint("Distance", 24, Q("6.9828 mm")))
sketch1.addConstraint(Sketcher.Constraint("Distance", 25, Q("50.0343 mm")))
sketch1.addConstraint(Sketcher.Constraint("Distance", 26, Q("6.9829 mm")))
sketch1.addConstraint(Sketcher.Constraint("Distance", 28, Q("12.7651 mm")))
sketch1.addConstraint(Sketcher.Constraint("Distance", 30, Q("12.7651 mm")))
sketch1.addConstraint(Sketcher.Constraint("Distance", 32, Q("6.9829 mm")))
sketch1.addConstraint(Sketcher.Constraint("Distance", 33, Q("50.0343 mm")))
sketch1.addConstraint(Sketcher.Constraint("Distance", 34, Q("6.9828 mm")))
sketch1.addConstraint(Sketcher.Constraint("Distance", 36, Q("12.7652 mm")))
sketch1.addConstraint(Sketcher.Constraint("DistanceX", 40, 3, -1, 1, Q("93.9638 mm")))
sketch1.addConstraint(Sketcher.Constraint("DistanceX", 41, 3, -1, 1, Q("27.2798 mm")))
sketch1.addConstraint(Sketcher.Constraint("DistanceX", 42, 3, -1, 1, Q("60.6218 mm")))
sketch1.addConstraint(Sketcher.Constraint("DistanceX", 43, 3, -1, 1, Q("114.3154 mm")))
sketch1.addConstraint(Sketcher.Constraint("DistanceX", 44, 3, -1, 1, Q("121.2436 mm")))
sketch1.addConstraint(Sketcher.Constraint("DistanceX", 45, 3, -1, 1, Q("91.5833 mm")))
sketch1.addConstraint(Sketcher.Constraint("DistanceY", 45, 3, -1, 1, Q("52.8756 mm")))
sketch1.addConstraint(Sketcher.Constraint("DistanceX", 46, 3, -1, 1, Q("63.1036 mm")))
sketch1.addConstraint(Sketcher.Constraint("DistanceY", 46, 3, -1, 1, Q("36.5313 mm")))
sketch1.addConstraint(Sketcher.Constraint("DistanceX", 48, 3, -1, 1, Q("68.0388 mm")))
sketch1.addConstraint(Sketcher.Constraint("DistanceX", 54, 3, -1, 1, Q("40.9904 mm")))
sketch1.addConstraint(Sketcher.Constraint("DistanceY", 54, 3, -1, 1, Q("23.7287 mm")))
sketch1.addConstraint(Sketcher.Constraint("DistanceX", -1, 1, 56, 3, Q("27.2798 mm")))
sketch1.addConstraint(Sketcher.Constraint("DistanceY", 57, 3, -1, 1, Q("105.7513 mm")))
sketch1.addConstraint(Sketcher.Constraint("DistanceX", -1, 1, 58, 3, Q("0.0852 mm")))
sketch1.addConstraint(Sketcher.Constraint("DistanceX", -1, 1, 59, 3, Q("60.6218 mm")))
sketch1.addConstraint(Sketcher.Constraint("DistanceX", -1, 1, 60, 3, Q("93.9638 mm")))
sketch1.addConstraint(Sketcher.Constraint("DistanceX", -1, 1, 61, 3, Q("63.1888 mm")))
sketch1.addConstraint(Sketcher.Constraint("DistanceY", 61, 3, -1, 1, Q("36.3837 mm")))
sketch1.addConstraint(Sketcher.Constraint("DistanceX", -1, 1, 62, 3, Q("91.5833 mm")))
sketch1.addConstraint(Sketcher.Constraint("DistanceY", 62, 3, -1, 1, Q("52.8756 mm")))
sketch1.addConstraint(Sketcher.Constraint("DistanceX", -1, 1, 63, 3, Q("114.3154 mm")))
sketch1.addConstraint(Sketcher.Constraint("DistanceX", -1, 1, 64, 3, Q("121.2436 mm")))
sketch1.addConstraint(Sketcher.Constraint("DistanceX", 65, 3, -1, 1, Q("121.2436 mm")))
sketch1.addConstraint(Sketcher.Constraint("DistanceX", 66, 3, -1, 1, Q("121.2436 mm")))
sketch1.addConstraint(Sketcher.Constraint("DistanceX", 67, 3, -1, 1, Q("114.3154 mm")))
sketch1.addConstraint(Sketcher.Constraint("DistanceX", 68, 3, -1, 1, Q("91.5833 mm")))
sketch1.addConstraint(Sketcher.Constraint("DistanceY", -1, 1, 68, 3, Q("52.8756 mm")))
sketch1.addConstraint(Sketcher.Constraint("DistanceX", 69, 3, -1, 1, Q("63.1888 mm")))
sketch1.addConstraint(Sketcher.Constraint("DistanceY", -1, 1, 69, 3, Q("36.3837 mm")))
sketch1.addConstraint(Sketcher.Constraint("DistanceX", 70, 3, -1, 1, Q("93.9638 mm")))
sketch1.addConstraint(Sketcher.Constraint("DistanceX", -1, 1, 71, 3, Q("93.9638 mm")))
sketch1.addConstraint(Sketcher.Constraint("DistanceX", 72, 3, -1, 1, Q("0.0852 mm")))
sketch1.addConstraint(Sketcher.Constraint("DistanceX", 73, 3, -1, 1, Q("27.2798 mm")))
sketch1.addConstraint(Sketcher.Constraint("DistanceX", -1, 1, 74, 3, Q("63.1036 mm")))
sketch1.addConstraint(Sketcher.Constraint("DistanceY", -1, 1, 74, 3, Q("36.5313 mm")))
sketch1.addConstraint(Sketcher.Constraint("DistanceX", -1, 1, 75, 3, Q("121.2436 mm")))
sketch1.addConstraint(Sketcher.Constraint("DistanceX", -1, 1, 76, 3, Q("91.5833 mm")))
sketch1.addConstraint(Sketcher.Constraint("DistanceY", -1, 1, 76, 3, Q("52.8756 mm")))
sketch1.addConstraint(Sketcher.Constraint("DistanceX", -1, 1, 77, 3, Q("121.2436 mm")))
sketch1.addConstraint(Sketcher.Constraint("DistanceX", -1, 1, 78, 3, Q("114.3154 mm")))
sketch1.addConstraint(Sketcher.Constraint("DistanceY", -1, 1, 79, 3, Q("105.7513 mm")))
sketch1.addConstraint(Sketcher.Constraint("DistanceX", -1, 1, 80, 3, Q("60.6218 mm")))
sketch1.addConstraint(Sketcher.Constraint("DistanceX", -1, 1, 82, 3, Q("27.2798 mm")))
sketch1.addConstraint(Sketcher.Constraint("DistanceX", -1, 1, 0, 2, Q("127.9756 mm")))
sketch1.addConstraint(Sketcher.Constraint("DistanceY", -1, 1, 0, 2, Q("62.3397 mm")))
sketch1.addConstraint(Sketcher.Constraint("DistanceX", -1, 1, 1, 2, Q("117.9756 mm")))
sketch1.addConstraint(Sketcher.Constraint("DistanceX", -1, 1, 3, 2, Q("93.3346 mm")))
sketch1.addConstraint(Sketcher.Constraint("DistanceX", -1, 1, 4, 2, Q("87.2873 mm")))
sketch1.addConstraint(Sketcher.Constraint("DistanceX", -1, 1, 5, 2, Q("43.9563 mm")))
sketch1.addConstraint(Sketcher.Constraint("DistanceX", 10, 2, -1, 1, Q("22.3205 mm")))
sketch1.addConstraint(Sketcher.Constraint("DistanceX", 12, 2, -1, 1, Q("43.9563 mm")))
sketch1.addConstraint(Sketcher.Constraint("DistanceX", 13, 2, -1, 1, Q("87.2873 mm")))
sketch1.addConstraint(Sketcher.Constraint("DistanceX", 14, 2, -1, 1, Q("93.3346 mm")))
sketch1.addConstraint(Sketcher.Constraint("DistanceX", 16, 2, -1, 1, Q("117.9756 mm")))
sketch1.addConstraint(Sketcher.Constraint("DistanceX", 17, 2, -1, 1, Q("127.9756 mm")))
sketch1.addConstraint(Sketcher.Constraint("DistanceX", 20, 2, -1, 1, Q("127.9756 mm")))
sketch1.addConstraint(Sketcher.Constraint("DistanceX", 21, 2, -1, 1, Q("117.9756 mm")))
sketch1.addConstraint(Sketcher.Constraint("DistanceX", 23, 2, -1, 1, Q("93.3346 mm")))
sketch1.addConstraint(Sketcher.Constraint("DistanceX", 24, 2, -1, 1, Q("87.2873 mm")))
sketch1.addConstraint(Sketcher.Constraint("DistanceX", 25, 2, -1, 1, Q("43.9563 mm")))
sketch1.addConstraint(Sketcher.Constraint("DistanceX", -1, 1, 30, 2, Q("22.3205 mm")))
sketch1.addConstraint(Sketcher.Constraint("DistanceX", -1, 1, 32, 2, Q("43.9563 mm")))
sketch1.addConstraint(Sketcher.Constraint("DistanceX", -1, 1, 33, 2, Q("87.2873 mm")))
sketch1.addConstraint(Sketcher.Constraint("DistanceX", -1, 1, 34, 2, Q("93.3346 mm")))
sketch1.addConstraint(Sketcher.Constraint("DistanceX", -1, 1, 36, 2, Q("117.9756 mm")))
sketch1.addConstraint(Sketcher.Constraint("DistanceX", 52, 1, -1, 1, Q("51.5367 mm")))
pad1 = doc.addObject("PartDesign::Pad", "Pad")
body.addObject(pad1)
pad1.Profile = sketch1
pad1.Length = 3

doc.recompute()
